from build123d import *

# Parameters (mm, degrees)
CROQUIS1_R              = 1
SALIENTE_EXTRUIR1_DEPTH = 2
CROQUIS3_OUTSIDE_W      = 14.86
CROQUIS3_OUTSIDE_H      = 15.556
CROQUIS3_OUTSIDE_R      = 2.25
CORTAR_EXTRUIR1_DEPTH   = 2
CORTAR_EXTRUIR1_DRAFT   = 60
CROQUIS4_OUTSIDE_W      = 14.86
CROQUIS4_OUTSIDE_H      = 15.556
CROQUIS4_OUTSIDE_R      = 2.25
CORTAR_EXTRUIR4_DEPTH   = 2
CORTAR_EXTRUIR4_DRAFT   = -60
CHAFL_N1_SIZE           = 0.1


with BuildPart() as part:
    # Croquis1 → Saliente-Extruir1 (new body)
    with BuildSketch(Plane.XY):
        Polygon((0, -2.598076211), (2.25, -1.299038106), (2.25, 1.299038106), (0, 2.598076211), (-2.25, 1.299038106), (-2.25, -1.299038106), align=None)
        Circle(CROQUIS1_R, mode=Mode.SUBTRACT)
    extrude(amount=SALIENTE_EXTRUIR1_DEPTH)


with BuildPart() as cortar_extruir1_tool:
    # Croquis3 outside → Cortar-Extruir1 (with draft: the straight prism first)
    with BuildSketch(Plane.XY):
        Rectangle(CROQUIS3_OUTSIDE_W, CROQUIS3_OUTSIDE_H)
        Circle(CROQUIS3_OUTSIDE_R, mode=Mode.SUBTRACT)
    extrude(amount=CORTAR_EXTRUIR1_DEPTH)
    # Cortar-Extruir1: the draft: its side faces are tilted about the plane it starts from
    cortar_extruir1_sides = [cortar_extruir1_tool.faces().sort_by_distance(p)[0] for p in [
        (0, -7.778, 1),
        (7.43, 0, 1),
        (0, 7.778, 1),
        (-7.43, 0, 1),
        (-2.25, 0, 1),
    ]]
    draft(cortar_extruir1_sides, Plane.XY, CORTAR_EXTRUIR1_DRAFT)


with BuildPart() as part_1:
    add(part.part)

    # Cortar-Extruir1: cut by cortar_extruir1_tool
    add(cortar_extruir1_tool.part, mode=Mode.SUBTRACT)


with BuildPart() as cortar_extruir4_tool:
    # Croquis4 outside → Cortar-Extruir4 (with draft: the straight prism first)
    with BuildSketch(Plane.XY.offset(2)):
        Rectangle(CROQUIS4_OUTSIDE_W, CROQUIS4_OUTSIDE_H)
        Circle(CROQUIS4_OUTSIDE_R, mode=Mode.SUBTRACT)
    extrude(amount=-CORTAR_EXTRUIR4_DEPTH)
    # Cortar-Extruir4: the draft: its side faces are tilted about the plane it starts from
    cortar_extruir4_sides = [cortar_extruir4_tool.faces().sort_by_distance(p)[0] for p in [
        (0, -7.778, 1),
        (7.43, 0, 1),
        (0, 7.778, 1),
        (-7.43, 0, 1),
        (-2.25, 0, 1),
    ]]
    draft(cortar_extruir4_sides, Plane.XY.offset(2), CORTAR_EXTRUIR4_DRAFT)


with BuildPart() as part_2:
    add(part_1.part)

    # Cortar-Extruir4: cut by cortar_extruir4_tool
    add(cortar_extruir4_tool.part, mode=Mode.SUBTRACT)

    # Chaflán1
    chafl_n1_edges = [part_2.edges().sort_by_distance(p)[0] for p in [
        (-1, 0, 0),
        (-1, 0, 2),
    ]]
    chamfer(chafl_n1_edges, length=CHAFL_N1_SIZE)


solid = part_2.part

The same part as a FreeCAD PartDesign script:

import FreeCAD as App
import Part
import Sketcher
from FreeCAD import Vector
Q = App.Units.Quantity


def edges_at(feature, points):
    """Names of the edges that pass closest to the given points."""
    edges = feature.Shape.Edges
    near = lambda p: min(range(len(edges)), key=lambda i: edges[i].distToShape(Part.Vertex(*p))[0])
    return sorted({f"Edge{near(p) + 1}" for p in points})


def faces_at(feature, points):
    """Names of the faces that lie closest to the given points."""
    faces = feature.Shape.Faces
    near = lambda p: min(range(len(faces)), key=lambda i: faces[i].distToShape(Part.Vertex(*p))[0])
    return sorted({f"Face{near(p) + 1}" for p in points})

doc = App.newDocument("Part")
body = doc.addObject("PartDesign::Body", "Body")

# Sketch on XY plane
sketch1 = body.newObject("Sketcher::SketchObject", "Sketch")
sketch1.AttachmentSupport = (doc.getObject("XY_Plane"), [""])
sketch1.MapMode = "FlatFace"
sketch1.addGeometry([
    Part.LineSegment(Vector(0, -2.6, 0), Vector(2.2, -1.3, 0)),  # 0
    Part.LineSegment(Vector(2.2, -1.3, 0), Vector(2.2, 1.3, 0)),  # 1
    Part.LineSegment(Vector(2.2, 1.3, 0), Vector(0, 2.6, 0)),  # 2
    Part.LineSegment(Vector(0, 2.6, 0), Vector(-2.2, 1.3, 0)),  # 3
    Part.LineSegment(Vector(-2.2, 1.3, 0), Vector(-2.2, -1.3, 0)),  # 4
    Part.LineSegment(Vector(-2.2, -1.3, 0), Vector(0, -2.6, 0)),  # 5
    Part.Circle(Vector(0, 0, 0), Vector(0, 0, 1), 1),  # 6
], False)
sketch1.addConstraint([
    Sketcher.Constraint("Coincident", 0, 2, 1, 1),
    Sketcher.Constraint("Coincident", 1, 2, 2, 1),
    Sketcher.Constraint("Coincident", 2, 2, 3, 1),
    Sketcher.Constraint("Coincident", 3, 2, 4, 1),
    Sketcher.Constraint("Coincident", 4, 2, 5, 1),
    Sketcher.Constraint("Coincident", 5, 2, 0, 1),
    Sketcher.Constraint("Vertical", 1),
    Sketcher.Constraint("Vertical", 4),
    Sketcher.Constraint("Coincident", 6, 3, -1, 1),
    Sketcher.Constraint("Symmetric", 0, 2, 3, 2, -1, 1),
    Sketcher.Constraint("Symmetric", 2, 2, 5, 2, -1, 1),
    Sketcher.Constraint("PointOnObject", 2, 2, -2),
    Sketcher.Constraint("Parallel", 2, 5),
    Sketcher.Constraint("Horizontal", 1, 2, 3, 2),
    Sketcher.Constraint("Diameter", 6, Q("2 mm")),
    Sketcher.Constraint("Angle", 0, Q("30 deg")),
    Sketcher.Constraint("DistanceX", 3, 2, 1, 2, Q("4.5 mm")),
    Sketcher.Constraint("DistanceY", 1, 1, 1, 2, Q("2.598076 mm")),
])
pad1 = body.newObject("PartDesign::Pad", "Pad")
pad1.Profile = sketch1
pad1.Length = 2
body2 = doc.addObject("PartDesign::Body", "Body001")

# Sketch on XY plane
sketch2 = body2.newObject("Sketcher::SketchObject", "Sketch001")
sketch2.AttachmentSupport = (doc.getObject("XY_Plane001"), [""])
sketch2.MapMode = "FlatFace"
sketch2.addGeometry([
    Part.LineSegment(Vector(-7.4, 7.8, 0), Vector(-7.4, -7.8, 0)),  # 0
    Part.LineSegment(Vector(-7.4, -7.8, 0), Vector(7.4, -7.8, 0)),  # 1
    Part.LineSegment(Vector(7.4, -7.8, 0), Vector(7.4, 7.8, 0)),  # 2
    Part.LineSegment(Vector(7.4, 7.8, 0), Vector(-7.4, 7.8, 0)),  # 3
    Part.Circle(Vector(0, 0, 0), Vector(0, 0, 1), 2.2),  # 4
], False)
sketch2.addConstraint([
    Sketcher.Constraint("Coincident", 0, 2, 1, 1),
    Sketcher.Constraint("Coincident", 1, 2, 2, 1),
    Sketcher.Constraint("Coincident", 2, 2, 3, 1),
    Sketcher.Constraint("Coincident", 3, 2, 0, 1),
    Sketcher.Constraint("Vertical", 0),
    Sketcher.Constraint("Horizontal", 1),
    Sketcher.Constraint("Vertical", 2),
    Sketcher.Constraint("Horizontal", 3),
    Sketcher.Constraint("Coincident", 4, 3, -1, 1),
    Sketcher.Constraint("Symmetric", 0, 2, 2, 2, -1, 1),
    Sketcher.Constraint("Diameter", 4, Q("4.5 mm")),
    Sketcher.Constraint("DistanceX", 1, 1, 1, 2, Q("14.86 mm")),
    Sketcher.Constraint("DistanceY", 0, 2, 0, 1, Q("15.556 mm")),
])
pad2 = body2.newObject("PartDesign::Pad", "Pad001")
pad2.Profile = sketch2
pad2.Length = 2
doc.recompute()

draft = body2.newObject("PartDesign::Draft", "Draft")
draft.Base = (pad2, faces_at(pad2, [
    (0, -7.778, 1),
    (7.43, 0, 1),
    (0, 7.778, 1),
    (-7.43, 0, 1),
    (-2.25, 0, 1),
]))
draft.NeutralPlane = (doc.getObject("XY_Plane001"), [""])
draft.Angle = 60
draft.Reversed = False
doc.recompute()

boolean = body.newObject("PartDesign::Boolean", "Boolean")
boolean.Type = "Cut"
boolean.addObjects([body2])
body3 = doc.addObject("PartDesign::Body", "Body002")

# Sketch on XY plane
sketch3 = body3.newObject("Sketcher::SketchObject", "Sketch002")
sketch3.AttachmentSupport = (doc.getObject("XY_Plane002"), [""])
sketch3.MapMode = "FlatFace"
sketch3.AttachmentOffset = App.Placement(Vector(0, 0, 2), App.Rotation())
sketch3.addGeometry([
    Part.LineSegment(Vector(-7.4, 7.8, 0), Vector(-7.4, -7.8, 0)),  # 0
    Part.LineSegment(Vector(-7.4, -7.8, 0), Vector(7.4, -7.8, 0)),  # 1
    Part.LineSegment(Vector(7.4, -7.8, 0), Vector(7.4, 7.8, 0)),  # 2
    Part.LineSegment(Vector(7.4, 7.8, 0), Vector(-7.4, 7.8, 0)),  # 3
    Part.Circle(Vector(0, 0, 0), Vector(0, 0, 1), 2.2),  # 4
], False)
sketch3.addConstraint([
    Sketcher.Constraint("Coincident", 0, 2, 1, 1),
    Sketcher.Constraint("Coincident", 1, 2, 2, 1),
    Sketcher.Constraint("Coincident", 2, 2, 3, 1),
    Sketcher.Constraint("Coincident", 3, 2, 0, 1),
    Sketcher.Constraint("Vertical", 0),
    Sketcher.Constraint("Horizontal", 1),
    Sketcher.Constraint("Vertical", 2),
    Sketcher.Constraint("Horizontal", 3),
    Sketcher.Constraint("Coincident", 4, 3, -1, 1),
    Sketcher.Constraint("Symmetric", 0, 2, 2, 2, -1, 1),
    Sketcher.Constraint("Diameter", 4, Q("4.5 mm")),
    Sketcher.Constraint("DistanceX", 1, 1, 1, 2, Q("14.86 mm")),
    Sketcher.Constraint("DistanceY", 0, 2, 0, 1, Q("15.556 mm")),
])
pad3 = body3.newObject("PartDesign::Pad", "Pad002")
pad3.Profile = sketch3
pad3.Length = 2
pad3.Reversed = True
doc.recompute()

datumplane = body3.newObject("PartDesign::Plane", "DatumPlane")
datumplane.AttachmentSupport = (doc.getObject("XY_Plane002"), [""])
datumplane.MapMode = "FlatFace"
datumplane.AttachmentOffset = App.Placement(Vector(0, 0, 2), App.Rotation())
draft2 = body3.newObject("PartDesign::Draft", "Draft001")
draft2.Base = (pad3, faces_at(pad3, [
    (0, -7.778, 1),
    (7.43, 0, 1),
    (0, 7.778, 1),
    (-7.43, 0, 1),
    (-2.25, 0, 1),
]))
draft2.NeutralPlane = (datumplane, [""])
draft2.Angle = 60
draft2.Reversed = True
doc.recompute()

boolean2 = body.newObject("PartDesign::Boolean", "Boolean001")
boolean2.Type = "Cut"
boolean2.addObjects([body3])
doc.recompute()

chamfer = body.newObject("PartDesign::Chamfer", "Chamfer")
chamfer.Base = (boolean2, edges_at(boolean2, [(-1, 0, 0), (-1, 0, 2)]))
chamfer.Size = 0.1

doc.recompute()
